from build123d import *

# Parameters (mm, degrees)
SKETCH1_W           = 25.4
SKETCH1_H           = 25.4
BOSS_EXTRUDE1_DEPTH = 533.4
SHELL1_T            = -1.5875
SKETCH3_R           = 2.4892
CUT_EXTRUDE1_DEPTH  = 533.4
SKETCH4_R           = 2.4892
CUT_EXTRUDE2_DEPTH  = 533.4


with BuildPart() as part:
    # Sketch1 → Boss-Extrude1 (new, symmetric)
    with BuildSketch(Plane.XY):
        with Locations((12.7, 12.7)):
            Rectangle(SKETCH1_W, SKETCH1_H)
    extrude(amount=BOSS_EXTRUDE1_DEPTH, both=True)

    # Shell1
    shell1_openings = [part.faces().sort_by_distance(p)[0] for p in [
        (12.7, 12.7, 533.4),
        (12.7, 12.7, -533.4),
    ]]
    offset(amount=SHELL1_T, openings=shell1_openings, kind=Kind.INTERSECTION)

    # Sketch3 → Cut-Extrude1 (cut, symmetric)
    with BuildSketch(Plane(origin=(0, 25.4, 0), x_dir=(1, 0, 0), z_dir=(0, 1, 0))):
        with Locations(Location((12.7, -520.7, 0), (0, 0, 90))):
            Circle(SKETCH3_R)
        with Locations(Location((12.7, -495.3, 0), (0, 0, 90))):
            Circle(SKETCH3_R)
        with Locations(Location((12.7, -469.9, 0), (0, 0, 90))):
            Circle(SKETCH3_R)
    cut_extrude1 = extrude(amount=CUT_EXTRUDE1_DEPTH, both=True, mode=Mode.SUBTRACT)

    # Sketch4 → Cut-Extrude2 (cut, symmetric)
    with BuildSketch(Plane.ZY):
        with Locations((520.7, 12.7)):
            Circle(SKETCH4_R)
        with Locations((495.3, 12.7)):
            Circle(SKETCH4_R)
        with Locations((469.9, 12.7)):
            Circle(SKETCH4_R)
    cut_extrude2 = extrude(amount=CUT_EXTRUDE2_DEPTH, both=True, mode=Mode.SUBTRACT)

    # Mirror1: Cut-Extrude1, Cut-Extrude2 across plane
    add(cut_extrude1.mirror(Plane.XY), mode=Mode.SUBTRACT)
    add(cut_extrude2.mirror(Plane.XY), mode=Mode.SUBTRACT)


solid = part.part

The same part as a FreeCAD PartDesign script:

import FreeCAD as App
import Part
import Sketcher

V = App.Vector
Q = App.Units.Quantity


def faces_at(feature, points):
    """Names of the faces that lie closest to the given points."""
    faces = feature.Shape.Faces
    near = lambda p: min(range(len(faces)), key=lambda i: faces[i].distToShape(Part.Vertex(*p))[0])
    return sorted({f"Face{near(p) + 1}" for p in points})


def add_polygon(sketch, points):
    """Adds a closed chain of lines whose ends are joined by coincident constraints."""
    first, n = sketch.GeometryCount, len(points)
    for a, b in zip(points, points[1:] + points[:1]):
        sketch.addGeometry(Part.LineSegment(App.Vector(*a, 0), App.Vector(*b, 0)), False)
    for i in range(n):
        sketch.addConstraint(Sketcher.Constraint("Coincident", first + i, 2, first + (i + 1) % n, 1))

doc = App.newDocument("Part")
body = doc.addObject("PartDesign::Body", "Body")

sketch1 = body.newObject("Sketcher::SketchObject", "Sketch")
sketch1.AttachmentSupport = (doc.getObject("XY_Plane"), [""])
sketch1.MapMode = "FlatFace"
add_polygon(sketch1, [(0, 25), (0, 0), (25, 0), (25, 25)])
sketch1.addConstraint([
    Sketcher.Constraint("Vertical", 0),
    Sketcher.Constraint("Horizontal", 1),
    Sketcher.Constraint("Vertical", 2),
    Sketcher.Constraint("Horizontal", 3),
    Sketcher.Constraint("Coincident", 0, 2, -1, 1),
    Sketcher.Constraint("Equal", 3, 0),
    Sketcher.Constraint("DistanceX", 1, 1, 1, 2, Q("1 in")),
])
pad1 = body.newObject("PartDesign::Pad", "Pad")
pad1.Profile = sketch1
pad1.Length = Q("42 in")
pad1.Midplane = True
doc.recompute()

thickness = body.newObject("PartDesign::Thickness", "Thickness")
thickness.Base = (pad1, faces_at(pad1, [(12.7, 12.7, 533.4), (12.7, 12.7, -533.4)]))
thickness.Value = Q("0.0625 in")
thickness.Reversed = True
thickness.Join = "Intersection"

sketch2 = body.newObject("Sketcher::SketchObject", "Sketch001")
sketch2.AttachmentSupport = (doc.getObject("XZ_Plane"), [""])
sketch2.MapMode = "FlatFace"
sketch2.AttachmentOffset = App.Placement(V(0, 0, -1 * 25.4), App.Rotation())
sketch2.addGeometry([
    Part.Circle(V(12.7, 520.7, 0), V(0, 0, 1), 2.5),
    Part.Circle(V(12.7, 495.3, 0), V(0, 0, 1), 2.5),
    Part.Circle(V(12.7, 469.9, 0), V(0, 0, 1), 2.5),
], False)
sketch2.addConstraint([
    Sketcher.Constraint("Equal", 0, 1),
    Sketcher.Constraint("Equal", 1, 2),
    Sketcher.Constraint("Vertical", 0, 3, 1, 3),
    Sketcher.Constraint("Vertical", 1, 3, 2, 3),
    Sketcher.Constraint("Diameter", 0, Q("0.196 in")),
    Sketcher.Constraint("DistanceY", 1, 3, 0, 3, Q("1 in")),
    Sketcher.Constraint("DistanceY", 2, 3, 1, 3, Q("1 in")),
    Sketcher.Constraint("DistanceX", -1, 1, 0, 3, Q("0.5 in")),
    Sketcher.Constraint("DistanceY", -1, 1, 0, 3, Q("20.5 in")),
])
pocket1 = body.newObject("PartDesign::Pocket", "Pocket")
pocket1.Profile = sketch2
pocket1.Length = Q("42 in")
pocket1.Midplane = True

sketch3 = body.newObject("Sketcher::SketchObject", "Sketch002")
sketch3.AttachmentSupport = (doc.getObject("YZ_Plane"), [""])
sketch3.MapMode = "FlatFace"
sketch3.addGeometry([
    Part.Circle(V(12.7, 520.7, 0), V(0, 0, 1), 2.5),
    Part.Circle(V(12.7, 495.3, 0), V(0, 0, 1), 2.5),
    Part.Circle(V(12.7, 469.9, 0), V(0, 0, 1), 2.5),
], False)
sketch3.addConstraint([
    Sketcher.Constraint("Equal", 0, 1),
    Sketcher.Constraint("Equal", 1, 2),
    Sketcher.Constraint("Vertical", 0, 3, 1, 3),
    Sketcher.Constraint("Vertical", 1, 3, 2, 3),
    Sketcher.Constraint("Diameter", 0, Q("0.196 in")),
    Sketcher.Constraint("DistanceY", 1, 3, 0, 3, Q("1 in")),
    Sketcher.Constraint("DistanceY", 2, 3, 1, 3, Q("1 in")),
    Sketcher.Constraint("DistanceX", -1, 1, 0, 3, Q("0.5 in")),
    Sketcher.Constraint("DistanceY", -1, 1, 0, 3, Q("20.5 in")),
])
pocket2 = body.newObject("PartDesign::Pocket", "Pocket001")
pocket2.Profile = sketch3
pocket2.Length = Q("42 in")
pocket2.Midplane = True
doc.recompute()

mirrored = body.newObject("PartDesign::Mirrored", "Mirrored")
mirrored.Originals = [pocket1, pocket2]
mirrored.MirrorPlane = (doc.getObject("XY_Plane"), [""])
body.Tip = mirrored

doc.recompute()
